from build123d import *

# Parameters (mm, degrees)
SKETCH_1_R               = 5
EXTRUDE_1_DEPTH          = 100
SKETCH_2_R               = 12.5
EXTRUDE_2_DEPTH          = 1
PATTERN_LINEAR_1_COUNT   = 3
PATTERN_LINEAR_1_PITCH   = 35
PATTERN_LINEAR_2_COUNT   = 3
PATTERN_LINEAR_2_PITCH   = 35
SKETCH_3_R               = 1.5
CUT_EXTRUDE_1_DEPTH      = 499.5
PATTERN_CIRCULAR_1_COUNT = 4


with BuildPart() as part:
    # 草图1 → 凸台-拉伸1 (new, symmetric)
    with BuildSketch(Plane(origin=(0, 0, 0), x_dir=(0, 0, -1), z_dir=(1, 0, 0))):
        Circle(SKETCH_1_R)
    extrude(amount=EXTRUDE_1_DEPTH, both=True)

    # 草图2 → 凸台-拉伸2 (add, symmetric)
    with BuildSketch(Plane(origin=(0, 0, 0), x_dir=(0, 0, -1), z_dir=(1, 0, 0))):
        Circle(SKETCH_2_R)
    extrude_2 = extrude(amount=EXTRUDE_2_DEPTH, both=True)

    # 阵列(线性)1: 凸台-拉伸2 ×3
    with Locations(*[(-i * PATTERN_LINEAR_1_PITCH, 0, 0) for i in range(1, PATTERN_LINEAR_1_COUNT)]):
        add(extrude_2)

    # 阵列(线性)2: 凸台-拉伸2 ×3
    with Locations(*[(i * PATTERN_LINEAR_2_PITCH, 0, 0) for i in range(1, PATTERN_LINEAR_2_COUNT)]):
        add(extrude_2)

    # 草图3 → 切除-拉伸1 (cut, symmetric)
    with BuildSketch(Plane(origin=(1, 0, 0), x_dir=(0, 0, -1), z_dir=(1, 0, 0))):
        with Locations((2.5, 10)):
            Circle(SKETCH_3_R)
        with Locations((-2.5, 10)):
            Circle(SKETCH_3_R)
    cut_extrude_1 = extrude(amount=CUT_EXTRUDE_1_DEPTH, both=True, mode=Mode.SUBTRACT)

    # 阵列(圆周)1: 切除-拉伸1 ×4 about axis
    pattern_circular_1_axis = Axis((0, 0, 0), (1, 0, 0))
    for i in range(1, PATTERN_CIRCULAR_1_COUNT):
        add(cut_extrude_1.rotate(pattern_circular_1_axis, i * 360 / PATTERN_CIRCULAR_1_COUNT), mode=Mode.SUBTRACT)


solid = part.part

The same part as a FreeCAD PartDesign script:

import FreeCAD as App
import Part
import Sketcher

doc = App.newDocument("Part")
body = doc.addObject("PartDesign::Body", "Body")

sketch1 = body.newObject("Sketcher::SketchObject", "Sketch")
sketch1.AttachmentSupport = (doc.getObject("YZ_Plane"), [""])
sketch1.MapMode = "FlatFace"
sketch1.addGeometry(Part.Circle(App.Vector(0, 0, 0), App.Vector(0, 0, 1), 5), False)
sketch1.addConstraint(Sketcher.Constraint("Coincident", 0, 3, -1, 1))
sketch1.addConstraint(Sketcher.Constraint("Diameter", 0, 10.0))
pad1 = body.newObject("PartDesign::Pad", "Pad")
pad1.Profile = sketch1
pad1.Length = 200
pad1.Midplane = True

sketch2 = body.newObject("Sketcher::SketchObject", "Sketch001")
sketch2.AttachmentSupport = (doc.getObject("YZ_Plane"), [""])
sketch2.MapMode = "FlatFace"
sketch2.addGeometry(Part.Circle(App.Vector(0, 0, 0), App.Vector(0, 0, 1), 12), False)
sketch2.addConstraint(Sketcher.Constraint("Coincident", 0, 3, -1, 1))
sketch2.addConstraint(Sketcher.Constraint("Diameter", 0, 25.0))
pad2 = body.newObject("PartDesign::Pad", "Pad001")
pad2.Profile = sketch2
pad2.Length = 2
pad2.Midplane = True
doc.recompute()

linearpattern = body.newObject("PartDesign::LinearPattern", "LinearPattern")
linearpattern.Originals = [pad2]
linearpattern.Direction = (doc.getObject("X_Axis"), [""])
linearpattern.Mode = "offset"
linearpattern.Offset = 35
linearpattern.Occurrences = 3
linearpattern.Reversed = True
body.Tip = linearpattern
doc.recompute()

linearpattern2 = body.newObject("PartDesign::LinearPattern", "LinearPattern001")
linearpattern2.Originals = [pad2]
linearpattern2.Direction = (doc.getObject("X_Axis"), [""])
linearpattern2.Mode = "offset"
linearpattern2.Offset = 35
linearpattern2.Occurrences = 3
body.Tip = linearpattern2

sketch3 = body.newObject("Sketcher::SketchObject", "Sketch002")
sketch3.AttachmentSupport = (doc.getObject("YZ_Plane"), [""])
sketch3.MapMode = "FlatFace"
sketch3.AttachmentOffset = App.Placement(App.Vector(0, 0, 1), App.Rotation())
sketch3.addGeometry(Part.Circle(App.Vector(10, -2.5, 0), App.Vector(0, 0, 1), 1.5), False)
sketch3.addGeometry(Part.Circle(App.Vector(10, 2.5, 0), App.Vector(0, 0, 1), 1.5), False)
sketch3.addConstraint(Sketcher.Constraint("Equal", 0, 1))
sketch3.addConstraint(Sketcher.Constraint("Symmetric", 0, 3, 1, 3, -1))
sketch3.addConstraint(Sketcher.Constraint("Diameter", 0, 3.0))
sketch3.addConstraint(Sketcher.Constraint("DistanceX", -1, 1, 0, 3, 10.0))
sketch3.addConstraint(Sketcher.Constraint("DistanceY", 0, 3, 1, 3, 5.0))
pocket1 = body.newObject("PartDesign::Pocket", "Pocket")
pocket1.Profile = sketch3
pocket1.Length = 999
pocket1.Midplane = True
doc.recompute()

polarpattern = body.newObject("PartDesign::PolarPattern", "PolarPattern")
polarpattern.Originals = [pocket1]
polarpattern.Axis = (doc.getObject("X_Axis"), [""])
polarpattern.Angle = 360
polarpattern.Occurrences = 4
body.Tip = polarpattern

doc.recompute()
